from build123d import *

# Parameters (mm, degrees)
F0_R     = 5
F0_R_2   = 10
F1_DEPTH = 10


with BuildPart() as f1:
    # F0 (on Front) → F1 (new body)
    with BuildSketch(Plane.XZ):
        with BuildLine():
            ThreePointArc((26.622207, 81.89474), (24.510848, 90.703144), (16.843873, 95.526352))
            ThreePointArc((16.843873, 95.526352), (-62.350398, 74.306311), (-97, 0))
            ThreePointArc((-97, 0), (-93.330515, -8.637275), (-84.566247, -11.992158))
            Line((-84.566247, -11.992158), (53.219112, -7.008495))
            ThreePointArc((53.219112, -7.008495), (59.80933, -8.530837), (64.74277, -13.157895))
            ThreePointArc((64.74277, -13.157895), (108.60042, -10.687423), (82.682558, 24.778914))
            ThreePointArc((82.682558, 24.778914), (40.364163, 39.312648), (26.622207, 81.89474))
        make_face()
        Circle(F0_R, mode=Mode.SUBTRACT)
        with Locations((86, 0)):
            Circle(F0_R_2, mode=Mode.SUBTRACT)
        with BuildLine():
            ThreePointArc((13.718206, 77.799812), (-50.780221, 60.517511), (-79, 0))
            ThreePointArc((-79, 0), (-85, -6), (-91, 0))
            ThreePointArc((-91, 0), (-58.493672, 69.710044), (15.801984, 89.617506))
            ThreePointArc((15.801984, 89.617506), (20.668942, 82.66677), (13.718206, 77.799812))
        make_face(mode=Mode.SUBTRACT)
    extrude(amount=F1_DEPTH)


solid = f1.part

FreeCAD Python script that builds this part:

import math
import FreeCAD as App
import Part
import Sketcher

doc = App.newDocument("Part")
body = doc.addObject("PartDesign::Body", "Body")

# Sketch on XZ plane
sketch1 = body.newObject("Sketcher::SketchObject", "Sketch")
sketch1.AttachmentSupport = (doc.getObject("XZ_Plane"), [""])
sketch1.MapMode = "FlatFace"
sketch1.addGeometry([
    Part.ArcOfCircle(Part.Circle(App.Vector(15, 84, 0), App.Vector(0, 0, 1), 12), math.radians(-9), math.radians(80)),  # 0
    Part.ArcOfCircle(Part.Circle(App.Vector(0, 0, 0), App.Vector(0, 0, 1), 97), math.radians(80), math.radians(180)),  # 1
    Part.ArcOfCircle(Part.Circle(App.Vector(-85, 0, 0), App.Vector(0, 0, 1), 12), math.radians(180), math.radians(272)),  # 2
    Part.LineSegment(App.Vector(-85, -12, 0), App.Vector(53, -7, 0)),  # 3
    Part.ArcOfCircle(Part.Circle(App.Vector(54, -20, 0), App.Vector(0, 0, 1), 13), math.radians(32), math.radians(92)),  # 4
    Part.ArcOfCircle(Part.Circle(App.Vector(86, 0, 0), App.Vector(0, 0, 1), 25), math.radians(-148), math.radians(98)),  # 5
    Part.ArcOfCircle(Part.Circle(App.Vector(76, 74, 0), App.Vector(0, 0, 1), 50), math.radians(171), math.radians(278)),  # 6
    Part.Circle(App.Vector(0, 0, 0), App.Vector(0, 0, 1), 5),  # 7
    Part.Circle(App.Vector(86, 0, 0), App.Vector(0, 0, 1), 10),  # 8
    Part.ArcOfCircle(Part.Circle(App.Vector(15, 84, 0), App.Vector(0, 0, 1), 6), math.radians(-100), math.radians(80)),  # 9
    Part.ArcOfCircle(Part.Circle(App.Vector(0, 0, 0), App.Vector(0, 0, 1), 79), math.radians(80), math.radians(180)),  # 10
    Part.ArcOfCircle(Part.Circle(App.Vector(-85, 0, 0), App.Vector(0, 0, 1), 6), math.radians(180), math.radians(360)),  # 11
    Part.ArcOfCircle(Part.Circle(App.Vector(0, 0, 0), App.Vector(0, 0, 1), 91), math.radians(80), math.radians(180)),  # 12
], False)
sketch1.addConstraint([
    Sketcher.Constraint("Tangent", 0, 2, 1, 1),
    Sketcher.Constraint("Tangent", 1, 2, 2, 1),
    Sketcher.Constraint("Tangent", 2, 2, 3, 1),
    Sketcher.Constraint("Tangent", 3, 2, 4, 2),
    Sketcher.Constraint("Tangent", 4, 1, 5, 1),
    Sketcher.Constraint("Tangent", 5, 2, 6, 2),
    Sketcher.Constraint("Tangent", 6, 1, 0, 1),
    Sketcher.Constraint("Tangent", 9, 1, 10, 1),
    Sketcher.Constraint("Tangent", 10, 2, 11, 2),
    Sketcher.Constraint("Tangent", 11, 1, 12, 2),
    Sketcher.Constraint("Tangent", 12, 1, 9, 2),
    Sketcher.Constraint("Coincident", 1, 3, -1, 1),
    Sketcher.Constraint("Coincident", 7, 3, -1, 1),
    Sketcher.Constraint("Coincident", 10, 3, -1, 1),
    Sketcher.Constraint("Coincident", 12, 3, -1, 1),
    Sketcher.Constraint("Coincident", 8, 3, 5, 3),
    Sketcher.Constraint("Coincident", 9, 3, 0, 3),
    Sketcher.Constraint("Coincident", 11, 3, 2, 3),
    Sketcher.Constraint("PointOnObject", 2, 3, -1),
    Sketcher.Constraint("PointOnObject", 5, 3, -1),
    Sketcher.Constraint("Diameter", 7, 10.0),
    Sketcher.Constraint("Diameter", 8, 20.0),
    Sketcher.Constraint("Radius", 0, 12.0),
    Sketcher.Constraint("Radius", 1, 97.0),
    Sketcher.Constraint("Radius", 4, 12.999998),
    Sketcher.Constraint("Radius", 5, 25.0),
    Sketcher.Constraint("Radius", 6, 50.0),
    Sketcher.Constraint("Radius", 9, 6.0),
    Sketcher.Constraint("DistanceY", 4, 3, -1, 1, 19.999998),
    Sketcher.Constraint("DistanceX", -1, 1, 5, 3, 86.0),
    Sketcher.Constraint("DistanceY", 6, 3, 6, 1, 7.557998),
])
pad1 = body.newObject("PartDesign::Pad", "Pad")
pad1.Profile = sketch1
pad1.Length = 10

doc.recompute()
